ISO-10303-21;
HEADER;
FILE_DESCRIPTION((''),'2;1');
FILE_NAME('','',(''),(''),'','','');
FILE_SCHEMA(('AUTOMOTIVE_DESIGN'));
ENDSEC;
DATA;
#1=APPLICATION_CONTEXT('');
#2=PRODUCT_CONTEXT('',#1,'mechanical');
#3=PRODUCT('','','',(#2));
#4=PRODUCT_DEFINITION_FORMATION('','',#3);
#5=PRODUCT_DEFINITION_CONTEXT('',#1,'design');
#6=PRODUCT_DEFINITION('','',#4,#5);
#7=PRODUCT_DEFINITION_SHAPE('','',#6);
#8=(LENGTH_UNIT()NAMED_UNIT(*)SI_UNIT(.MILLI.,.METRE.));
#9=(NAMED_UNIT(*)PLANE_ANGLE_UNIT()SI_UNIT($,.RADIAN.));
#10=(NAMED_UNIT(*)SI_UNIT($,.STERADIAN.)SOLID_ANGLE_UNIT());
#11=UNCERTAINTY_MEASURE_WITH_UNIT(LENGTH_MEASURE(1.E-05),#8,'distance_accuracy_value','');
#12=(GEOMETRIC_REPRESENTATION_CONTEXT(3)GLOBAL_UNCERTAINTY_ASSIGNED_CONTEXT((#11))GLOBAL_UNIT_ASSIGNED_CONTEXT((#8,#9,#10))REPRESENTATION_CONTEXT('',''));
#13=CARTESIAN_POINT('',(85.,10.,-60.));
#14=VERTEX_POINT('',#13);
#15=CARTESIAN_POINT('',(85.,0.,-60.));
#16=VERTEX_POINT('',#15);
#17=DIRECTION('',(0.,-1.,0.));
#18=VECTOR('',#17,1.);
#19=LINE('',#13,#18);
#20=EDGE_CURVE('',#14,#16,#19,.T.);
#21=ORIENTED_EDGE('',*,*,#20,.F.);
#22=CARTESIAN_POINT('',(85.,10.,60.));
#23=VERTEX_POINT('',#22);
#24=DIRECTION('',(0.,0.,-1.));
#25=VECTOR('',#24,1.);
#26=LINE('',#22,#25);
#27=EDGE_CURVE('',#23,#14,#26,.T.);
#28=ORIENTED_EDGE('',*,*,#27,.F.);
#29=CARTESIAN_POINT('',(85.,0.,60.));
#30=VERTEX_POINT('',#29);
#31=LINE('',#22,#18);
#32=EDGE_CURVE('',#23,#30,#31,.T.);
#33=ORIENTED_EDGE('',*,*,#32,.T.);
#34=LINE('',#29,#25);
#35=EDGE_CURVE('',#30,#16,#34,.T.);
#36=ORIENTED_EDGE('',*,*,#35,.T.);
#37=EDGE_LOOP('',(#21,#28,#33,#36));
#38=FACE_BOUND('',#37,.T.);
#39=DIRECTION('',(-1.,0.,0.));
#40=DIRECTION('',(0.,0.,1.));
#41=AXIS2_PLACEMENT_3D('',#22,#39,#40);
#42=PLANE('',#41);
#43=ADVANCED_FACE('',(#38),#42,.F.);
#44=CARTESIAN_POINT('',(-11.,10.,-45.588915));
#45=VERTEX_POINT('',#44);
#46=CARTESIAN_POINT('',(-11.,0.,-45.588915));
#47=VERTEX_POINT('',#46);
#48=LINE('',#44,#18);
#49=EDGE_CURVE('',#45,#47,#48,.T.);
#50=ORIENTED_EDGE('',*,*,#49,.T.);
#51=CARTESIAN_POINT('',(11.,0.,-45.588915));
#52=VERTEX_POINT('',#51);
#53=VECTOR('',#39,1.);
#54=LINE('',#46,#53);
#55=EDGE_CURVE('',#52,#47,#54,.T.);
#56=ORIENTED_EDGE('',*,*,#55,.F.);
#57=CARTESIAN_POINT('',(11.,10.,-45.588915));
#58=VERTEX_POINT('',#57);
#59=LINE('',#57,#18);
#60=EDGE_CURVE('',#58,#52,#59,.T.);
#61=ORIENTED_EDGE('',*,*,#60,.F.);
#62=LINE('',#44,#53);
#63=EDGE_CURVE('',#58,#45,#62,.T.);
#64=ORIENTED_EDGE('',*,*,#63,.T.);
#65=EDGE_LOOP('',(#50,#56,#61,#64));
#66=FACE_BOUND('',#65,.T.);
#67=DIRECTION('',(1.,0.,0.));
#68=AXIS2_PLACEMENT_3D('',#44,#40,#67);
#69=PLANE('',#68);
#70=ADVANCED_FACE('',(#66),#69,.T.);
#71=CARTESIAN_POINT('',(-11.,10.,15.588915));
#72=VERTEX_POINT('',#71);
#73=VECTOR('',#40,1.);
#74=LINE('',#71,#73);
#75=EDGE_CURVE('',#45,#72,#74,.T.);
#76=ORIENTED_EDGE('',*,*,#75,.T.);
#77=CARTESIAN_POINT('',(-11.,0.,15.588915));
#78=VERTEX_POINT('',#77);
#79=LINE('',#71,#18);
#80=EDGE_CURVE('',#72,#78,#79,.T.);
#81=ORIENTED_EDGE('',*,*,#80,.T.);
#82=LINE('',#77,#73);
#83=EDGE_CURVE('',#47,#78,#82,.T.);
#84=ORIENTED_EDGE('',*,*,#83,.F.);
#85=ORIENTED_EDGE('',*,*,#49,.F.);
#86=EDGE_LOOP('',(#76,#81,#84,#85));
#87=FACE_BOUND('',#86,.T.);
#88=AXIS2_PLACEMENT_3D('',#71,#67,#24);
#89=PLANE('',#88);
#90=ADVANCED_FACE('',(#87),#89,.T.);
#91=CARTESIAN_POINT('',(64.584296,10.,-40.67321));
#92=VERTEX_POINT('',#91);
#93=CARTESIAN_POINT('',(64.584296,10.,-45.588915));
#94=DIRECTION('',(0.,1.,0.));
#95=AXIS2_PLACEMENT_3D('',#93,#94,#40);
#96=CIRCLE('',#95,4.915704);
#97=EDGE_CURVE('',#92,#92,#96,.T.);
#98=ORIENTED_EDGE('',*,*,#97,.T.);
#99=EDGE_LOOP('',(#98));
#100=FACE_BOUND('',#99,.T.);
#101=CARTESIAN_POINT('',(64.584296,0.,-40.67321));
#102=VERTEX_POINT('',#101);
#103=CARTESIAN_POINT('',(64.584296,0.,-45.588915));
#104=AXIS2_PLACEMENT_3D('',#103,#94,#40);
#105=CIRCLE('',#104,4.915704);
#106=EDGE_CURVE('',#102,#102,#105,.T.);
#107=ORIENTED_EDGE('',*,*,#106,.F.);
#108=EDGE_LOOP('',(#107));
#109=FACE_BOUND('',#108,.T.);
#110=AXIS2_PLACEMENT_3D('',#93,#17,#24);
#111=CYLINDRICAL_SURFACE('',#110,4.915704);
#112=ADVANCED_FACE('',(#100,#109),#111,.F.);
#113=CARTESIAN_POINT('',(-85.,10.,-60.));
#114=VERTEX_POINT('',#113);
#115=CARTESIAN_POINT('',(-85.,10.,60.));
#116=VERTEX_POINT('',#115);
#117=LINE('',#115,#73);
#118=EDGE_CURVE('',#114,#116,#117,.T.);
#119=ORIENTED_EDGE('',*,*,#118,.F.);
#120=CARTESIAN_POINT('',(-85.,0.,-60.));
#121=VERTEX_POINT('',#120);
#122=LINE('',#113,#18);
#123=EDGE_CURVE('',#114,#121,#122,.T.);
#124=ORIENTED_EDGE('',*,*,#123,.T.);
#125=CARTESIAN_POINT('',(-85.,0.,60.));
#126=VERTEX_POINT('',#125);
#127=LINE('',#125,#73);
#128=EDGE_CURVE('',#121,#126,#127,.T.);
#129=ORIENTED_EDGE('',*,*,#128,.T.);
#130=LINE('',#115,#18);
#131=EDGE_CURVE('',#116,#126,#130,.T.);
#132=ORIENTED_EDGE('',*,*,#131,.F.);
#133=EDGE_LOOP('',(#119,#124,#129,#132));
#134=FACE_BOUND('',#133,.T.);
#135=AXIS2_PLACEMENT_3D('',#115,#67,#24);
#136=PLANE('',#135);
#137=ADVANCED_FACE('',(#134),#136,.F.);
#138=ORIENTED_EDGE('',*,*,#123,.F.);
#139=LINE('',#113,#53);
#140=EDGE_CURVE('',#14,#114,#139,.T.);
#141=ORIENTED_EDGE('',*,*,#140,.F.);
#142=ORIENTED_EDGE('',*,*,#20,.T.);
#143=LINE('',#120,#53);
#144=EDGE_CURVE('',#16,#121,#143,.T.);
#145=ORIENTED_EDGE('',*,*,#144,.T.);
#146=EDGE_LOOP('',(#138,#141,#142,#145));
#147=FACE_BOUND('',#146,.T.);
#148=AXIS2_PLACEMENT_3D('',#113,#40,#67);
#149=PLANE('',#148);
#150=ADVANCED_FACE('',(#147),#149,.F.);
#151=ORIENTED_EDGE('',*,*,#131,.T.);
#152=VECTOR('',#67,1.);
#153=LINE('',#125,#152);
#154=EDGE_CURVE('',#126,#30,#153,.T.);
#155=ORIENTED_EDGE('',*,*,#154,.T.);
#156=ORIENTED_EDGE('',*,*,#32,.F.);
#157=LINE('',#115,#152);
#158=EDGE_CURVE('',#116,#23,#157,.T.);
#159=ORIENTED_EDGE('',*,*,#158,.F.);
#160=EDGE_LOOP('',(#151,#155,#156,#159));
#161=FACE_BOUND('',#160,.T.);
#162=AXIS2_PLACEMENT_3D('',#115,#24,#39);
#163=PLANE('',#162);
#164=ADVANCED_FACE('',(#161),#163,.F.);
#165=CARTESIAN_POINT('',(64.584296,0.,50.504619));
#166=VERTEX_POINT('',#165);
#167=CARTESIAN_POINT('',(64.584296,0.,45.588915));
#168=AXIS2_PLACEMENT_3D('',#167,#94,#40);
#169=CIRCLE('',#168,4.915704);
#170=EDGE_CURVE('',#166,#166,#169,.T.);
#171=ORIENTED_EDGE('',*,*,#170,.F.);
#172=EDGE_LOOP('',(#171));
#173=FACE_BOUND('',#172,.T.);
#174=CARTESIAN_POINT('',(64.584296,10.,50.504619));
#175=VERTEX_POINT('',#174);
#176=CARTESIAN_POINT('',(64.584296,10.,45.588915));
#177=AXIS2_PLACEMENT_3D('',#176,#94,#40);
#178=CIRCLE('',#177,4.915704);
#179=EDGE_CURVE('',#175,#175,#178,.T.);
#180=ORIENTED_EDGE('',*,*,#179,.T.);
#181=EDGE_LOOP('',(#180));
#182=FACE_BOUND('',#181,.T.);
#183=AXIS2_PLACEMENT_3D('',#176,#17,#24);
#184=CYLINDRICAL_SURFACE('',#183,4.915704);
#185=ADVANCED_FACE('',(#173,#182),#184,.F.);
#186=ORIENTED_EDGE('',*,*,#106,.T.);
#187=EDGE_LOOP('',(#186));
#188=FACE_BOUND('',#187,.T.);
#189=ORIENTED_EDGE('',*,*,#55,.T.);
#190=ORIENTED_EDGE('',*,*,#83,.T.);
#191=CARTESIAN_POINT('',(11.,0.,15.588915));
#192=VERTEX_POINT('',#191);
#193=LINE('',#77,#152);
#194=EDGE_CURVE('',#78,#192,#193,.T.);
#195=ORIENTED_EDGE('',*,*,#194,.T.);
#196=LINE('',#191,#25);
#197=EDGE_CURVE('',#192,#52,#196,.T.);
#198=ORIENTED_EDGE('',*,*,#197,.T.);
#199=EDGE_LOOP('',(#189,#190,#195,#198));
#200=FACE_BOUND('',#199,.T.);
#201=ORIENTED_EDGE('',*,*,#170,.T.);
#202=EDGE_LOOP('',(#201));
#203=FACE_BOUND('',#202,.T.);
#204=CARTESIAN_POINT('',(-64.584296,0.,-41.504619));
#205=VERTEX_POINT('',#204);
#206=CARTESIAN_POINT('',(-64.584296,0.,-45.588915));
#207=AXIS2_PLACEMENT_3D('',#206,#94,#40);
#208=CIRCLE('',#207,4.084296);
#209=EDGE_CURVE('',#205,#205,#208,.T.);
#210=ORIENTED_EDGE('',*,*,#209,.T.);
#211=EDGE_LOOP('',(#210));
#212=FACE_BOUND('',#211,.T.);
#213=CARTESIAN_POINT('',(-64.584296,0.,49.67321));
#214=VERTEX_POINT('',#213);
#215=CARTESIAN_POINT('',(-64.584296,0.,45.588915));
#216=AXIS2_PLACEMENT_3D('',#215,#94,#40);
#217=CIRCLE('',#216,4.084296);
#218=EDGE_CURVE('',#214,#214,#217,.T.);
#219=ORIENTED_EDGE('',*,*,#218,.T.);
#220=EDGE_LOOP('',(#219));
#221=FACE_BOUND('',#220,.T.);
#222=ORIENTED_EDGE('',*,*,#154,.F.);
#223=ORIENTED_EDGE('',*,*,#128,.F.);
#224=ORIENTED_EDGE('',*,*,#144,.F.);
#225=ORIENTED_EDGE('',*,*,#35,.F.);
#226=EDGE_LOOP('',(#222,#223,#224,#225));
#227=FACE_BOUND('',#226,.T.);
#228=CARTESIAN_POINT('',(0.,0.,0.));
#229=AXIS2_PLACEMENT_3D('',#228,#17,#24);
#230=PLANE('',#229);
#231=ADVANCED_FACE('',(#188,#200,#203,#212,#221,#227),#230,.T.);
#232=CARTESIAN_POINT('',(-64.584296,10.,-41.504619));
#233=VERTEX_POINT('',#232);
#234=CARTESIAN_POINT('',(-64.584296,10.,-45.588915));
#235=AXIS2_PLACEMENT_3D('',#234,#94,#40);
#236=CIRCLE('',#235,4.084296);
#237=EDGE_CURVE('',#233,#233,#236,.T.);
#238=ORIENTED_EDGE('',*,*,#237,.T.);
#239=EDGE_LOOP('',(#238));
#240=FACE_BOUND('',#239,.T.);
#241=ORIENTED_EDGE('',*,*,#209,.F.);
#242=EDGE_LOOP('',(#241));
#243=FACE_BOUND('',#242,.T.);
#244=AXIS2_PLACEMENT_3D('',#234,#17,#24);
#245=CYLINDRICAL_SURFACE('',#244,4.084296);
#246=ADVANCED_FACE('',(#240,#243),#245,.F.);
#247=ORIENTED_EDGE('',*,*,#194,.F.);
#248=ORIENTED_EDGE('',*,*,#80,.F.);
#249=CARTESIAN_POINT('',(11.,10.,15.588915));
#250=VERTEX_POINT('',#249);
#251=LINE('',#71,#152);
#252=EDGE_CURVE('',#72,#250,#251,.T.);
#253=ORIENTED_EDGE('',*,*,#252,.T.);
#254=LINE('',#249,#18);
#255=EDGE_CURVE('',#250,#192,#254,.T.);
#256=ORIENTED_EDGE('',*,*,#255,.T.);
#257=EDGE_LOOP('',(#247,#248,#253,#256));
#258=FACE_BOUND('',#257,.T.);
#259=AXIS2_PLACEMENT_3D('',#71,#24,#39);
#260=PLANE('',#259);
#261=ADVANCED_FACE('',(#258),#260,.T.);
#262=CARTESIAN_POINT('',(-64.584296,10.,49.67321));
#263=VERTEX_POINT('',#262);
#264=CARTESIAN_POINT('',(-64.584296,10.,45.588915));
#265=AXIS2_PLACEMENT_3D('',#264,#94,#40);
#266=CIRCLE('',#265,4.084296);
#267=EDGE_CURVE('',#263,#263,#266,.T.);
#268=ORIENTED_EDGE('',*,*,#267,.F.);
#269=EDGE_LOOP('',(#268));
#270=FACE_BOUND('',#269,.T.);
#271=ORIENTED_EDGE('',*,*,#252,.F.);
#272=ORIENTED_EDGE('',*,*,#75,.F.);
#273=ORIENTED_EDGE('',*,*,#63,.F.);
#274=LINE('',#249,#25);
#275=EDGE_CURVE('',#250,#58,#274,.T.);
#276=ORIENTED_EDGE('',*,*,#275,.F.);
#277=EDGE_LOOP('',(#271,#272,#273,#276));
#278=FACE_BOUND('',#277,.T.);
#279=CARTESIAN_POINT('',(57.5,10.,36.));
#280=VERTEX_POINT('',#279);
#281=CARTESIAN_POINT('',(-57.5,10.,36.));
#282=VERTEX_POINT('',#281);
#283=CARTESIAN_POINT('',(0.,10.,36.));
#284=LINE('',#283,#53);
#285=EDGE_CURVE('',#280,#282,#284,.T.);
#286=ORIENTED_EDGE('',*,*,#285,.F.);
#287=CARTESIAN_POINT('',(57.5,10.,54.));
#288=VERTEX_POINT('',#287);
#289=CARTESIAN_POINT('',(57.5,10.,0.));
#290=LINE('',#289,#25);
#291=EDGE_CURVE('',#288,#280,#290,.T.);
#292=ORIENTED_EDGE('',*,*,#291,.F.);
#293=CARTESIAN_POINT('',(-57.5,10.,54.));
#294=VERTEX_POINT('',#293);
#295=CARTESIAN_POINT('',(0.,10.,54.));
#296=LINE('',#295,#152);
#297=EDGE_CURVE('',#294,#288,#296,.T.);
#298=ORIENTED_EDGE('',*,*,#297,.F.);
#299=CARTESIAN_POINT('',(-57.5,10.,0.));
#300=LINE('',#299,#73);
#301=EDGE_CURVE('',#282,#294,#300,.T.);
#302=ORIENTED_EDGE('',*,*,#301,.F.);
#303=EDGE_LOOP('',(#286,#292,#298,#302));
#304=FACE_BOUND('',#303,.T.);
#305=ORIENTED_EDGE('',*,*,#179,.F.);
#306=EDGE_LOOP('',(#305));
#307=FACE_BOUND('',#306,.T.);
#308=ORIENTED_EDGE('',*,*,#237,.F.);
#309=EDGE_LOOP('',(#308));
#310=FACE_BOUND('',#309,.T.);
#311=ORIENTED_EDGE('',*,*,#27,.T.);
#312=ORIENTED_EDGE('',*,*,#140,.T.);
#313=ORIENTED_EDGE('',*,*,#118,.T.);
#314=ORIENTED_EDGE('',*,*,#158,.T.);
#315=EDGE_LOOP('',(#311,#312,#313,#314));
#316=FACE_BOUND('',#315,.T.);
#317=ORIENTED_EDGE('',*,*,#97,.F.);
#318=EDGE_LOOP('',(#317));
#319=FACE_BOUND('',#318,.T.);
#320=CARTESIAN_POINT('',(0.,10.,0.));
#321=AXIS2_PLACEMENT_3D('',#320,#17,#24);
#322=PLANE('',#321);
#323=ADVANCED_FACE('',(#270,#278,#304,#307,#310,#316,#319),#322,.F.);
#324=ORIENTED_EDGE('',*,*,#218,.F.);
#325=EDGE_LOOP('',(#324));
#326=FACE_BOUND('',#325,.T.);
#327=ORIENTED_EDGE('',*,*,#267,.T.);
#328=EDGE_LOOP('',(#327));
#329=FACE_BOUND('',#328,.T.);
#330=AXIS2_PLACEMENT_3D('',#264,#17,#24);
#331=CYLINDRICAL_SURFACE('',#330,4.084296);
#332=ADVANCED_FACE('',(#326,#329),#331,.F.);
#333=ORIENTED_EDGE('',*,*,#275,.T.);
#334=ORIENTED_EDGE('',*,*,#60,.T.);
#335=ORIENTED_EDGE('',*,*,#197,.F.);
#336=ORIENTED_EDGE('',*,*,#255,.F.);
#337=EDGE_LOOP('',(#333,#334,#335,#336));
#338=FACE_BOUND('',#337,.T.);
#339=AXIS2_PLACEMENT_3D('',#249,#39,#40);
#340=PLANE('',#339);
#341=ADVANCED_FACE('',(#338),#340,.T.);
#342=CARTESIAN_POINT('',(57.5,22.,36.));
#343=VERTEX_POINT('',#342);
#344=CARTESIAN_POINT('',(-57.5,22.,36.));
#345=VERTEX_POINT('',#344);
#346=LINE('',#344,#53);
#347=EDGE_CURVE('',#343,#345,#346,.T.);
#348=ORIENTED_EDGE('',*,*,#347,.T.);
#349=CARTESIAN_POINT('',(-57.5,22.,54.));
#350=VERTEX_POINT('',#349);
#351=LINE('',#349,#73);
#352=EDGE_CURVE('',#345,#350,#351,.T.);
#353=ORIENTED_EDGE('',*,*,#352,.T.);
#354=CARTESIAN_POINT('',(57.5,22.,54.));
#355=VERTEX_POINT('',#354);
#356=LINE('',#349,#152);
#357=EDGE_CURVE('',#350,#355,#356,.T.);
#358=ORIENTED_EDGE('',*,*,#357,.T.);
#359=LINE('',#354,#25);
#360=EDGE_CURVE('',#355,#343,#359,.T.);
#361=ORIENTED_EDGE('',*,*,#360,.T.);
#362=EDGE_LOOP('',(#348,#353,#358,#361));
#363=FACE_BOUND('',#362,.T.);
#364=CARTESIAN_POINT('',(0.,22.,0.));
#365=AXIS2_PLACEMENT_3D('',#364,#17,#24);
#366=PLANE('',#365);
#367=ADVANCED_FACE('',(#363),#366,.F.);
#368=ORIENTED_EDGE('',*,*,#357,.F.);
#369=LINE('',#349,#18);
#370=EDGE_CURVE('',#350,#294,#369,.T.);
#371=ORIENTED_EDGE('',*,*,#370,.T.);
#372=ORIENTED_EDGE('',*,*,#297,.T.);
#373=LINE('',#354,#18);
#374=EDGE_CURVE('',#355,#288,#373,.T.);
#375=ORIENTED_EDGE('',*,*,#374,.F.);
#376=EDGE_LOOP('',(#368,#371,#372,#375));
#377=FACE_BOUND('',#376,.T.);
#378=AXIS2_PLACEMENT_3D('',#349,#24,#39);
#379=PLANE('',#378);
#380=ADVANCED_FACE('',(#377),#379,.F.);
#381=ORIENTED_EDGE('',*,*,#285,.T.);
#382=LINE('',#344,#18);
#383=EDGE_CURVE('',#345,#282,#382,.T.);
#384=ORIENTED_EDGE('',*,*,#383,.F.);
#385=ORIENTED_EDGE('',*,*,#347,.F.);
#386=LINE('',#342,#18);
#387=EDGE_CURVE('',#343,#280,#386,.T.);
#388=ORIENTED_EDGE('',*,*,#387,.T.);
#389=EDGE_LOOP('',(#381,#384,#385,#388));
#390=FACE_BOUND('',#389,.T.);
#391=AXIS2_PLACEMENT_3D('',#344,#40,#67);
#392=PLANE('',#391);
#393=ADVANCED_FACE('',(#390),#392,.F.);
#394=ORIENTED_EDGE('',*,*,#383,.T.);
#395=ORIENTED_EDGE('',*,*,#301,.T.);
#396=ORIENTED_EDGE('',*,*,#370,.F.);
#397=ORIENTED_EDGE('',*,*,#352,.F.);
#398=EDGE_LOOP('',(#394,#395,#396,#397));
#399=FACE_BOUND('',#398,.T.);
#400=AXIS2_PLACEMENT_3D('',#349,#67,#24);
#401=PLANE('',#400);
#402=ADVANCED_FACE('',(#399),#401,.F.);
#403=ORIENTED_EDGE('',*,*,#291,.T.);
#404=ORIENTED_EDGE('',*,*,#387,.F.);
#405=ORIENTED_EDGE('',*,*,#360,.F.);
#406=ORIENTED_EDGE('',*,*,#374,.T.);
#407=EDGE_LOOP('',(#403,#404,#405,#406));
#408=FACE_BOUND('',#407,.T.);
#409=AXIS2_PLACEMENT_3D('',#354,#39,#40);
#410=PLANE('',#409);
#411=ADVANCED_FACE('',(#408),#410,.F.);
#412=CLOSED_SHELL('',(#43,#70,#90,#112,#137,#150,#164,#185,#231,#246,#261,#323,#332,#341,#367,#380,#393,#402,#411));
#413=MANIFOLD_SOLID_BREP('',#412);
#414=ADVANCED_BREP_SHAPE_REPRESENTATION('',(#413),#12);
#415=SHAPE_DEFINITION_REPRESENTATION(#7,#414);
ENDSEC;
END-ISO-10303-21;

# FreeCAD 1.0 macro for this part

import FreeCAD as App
import Part
import Sketcher
Q = App.Units.Quantity

doc = App.newDocument("Part")
body = doc.addObject("PartDesign::Body", "Body")

sketch1 = body.newObject("Sketcher::SketchObject", "Sketch")
sketch1.AttachmentSupport = (doc.getObject("XZ_Plane"), [""])
sketch1.MapMode = "FlatFace"
sketch1.addGeometry(Part.LineSegment(App.Vector(-85, -60, 0), App.Vector(-85, 60, 0)), False)
sketch1.addGeometry(Part.LineSegment(App.Vector(-85, 60, 0), App.Vector(85, 60, 0)), False)
sketch1.addGeometry(Part.LineSegment(App.Vector(85, 60, 0), App.Vector(85, -60, 0)), False)
sketch1.addGeometry(Part.LineSegment(App.Vector(85, -60, 0), App.Vector(-85, -60, 0)), False)
sketch1.addGeometry(Part.Circle(App.Vector(-64.6, 45.6, 0), App.Vector(0, 0, 1), 4.1), False)
sketch1.addGeometry(Part.Circle(App.Vector(64.6, 45.6, 0), App.Vector(0, 0, 1), 4.9), False)
sketch1.addGeometry(Part.LineSegment(App.Vector(11, 15.6, 0), App.Vector(-11, 15.6, 0)), False)
sketch1.addGeometry(Part.LineSegment(App.Vector(-11, 15.6, 0), App.Vector(-11, -45.6, 0)), False)
sketch1.addGeometry(Part.LineSegment(App.Vector(-11, -45.6, 0), App.Vector(11, -45.6, 0)), False)
sketch1.addGeometry(Part.LineSegment(App.Vector(11, -45.6, 0), App.Vector(11, 15.6, 0)), False)
sketch1.addGeometry(Part.Circle(App.Vector(-64.6, -45.6, 0), App.Vector(0, 0, 1), 4.1), False)
sketch1.addGeometry(Part.Circle(App.Vector(64.6, -45.6, 0), App.Vector(0, 0, 1), 4.9), False)
sketch1.addConstraint(Sketcher.Constraint("Coincident", 0, 2, 1, 1))
sketch1.addConstraint(Sketcher.Constraint("Coincident", 1, 2, 2, 1))
sketch1.addConstraint(Sketcher.Constraint("Coincident", 2, 2, 3, 1))
sketch1.addConstraint(Sketcher.Constraint("Coincident", 3, 2, 0, 1))
sketch1.addConstraint(Sketcher.Constraint("Coincident", 6, 2, 7, 1))
sketch1.addConstraint(Sketcher.Constraint("Coincident", 7, 2, 8, 1))
sketch1.addConstraint(Sketcher.Constraint("Coincident", 8, 2, 9, 1))
sketch1.addConstraint(Sketcher.Constraint("Coincident", 9, 2, 6, 1))
sketch1.addConstraint(Sketcher.Constraint("Vertical", 0))
sketch1.addConstraint(Sketcher.Constraint("Horizontal", 1))
sketch1.addConstraint(Sketcher.Constraint("Vertical", 2))
sketch1.addConstraint(Sketcher.Constraint("Horizontal", 3))
sketch1.addConstraint(Sketcher.Constraint("Horizontal", 6))
sketch1.addConstraint(Sketcher.Constraint("Vertical", 7))
sketch1.addConstraint(Sketcher.Constraint("Horizontal", 8))
sketch1.addConstraint(Sketcher.Constraint("Vertical", 9))
sketch1.addConstraint(Sketcher.Constraint("Equal", 4, 10))
sketch1.addConstraint(Sketcher.Constraint("Equal", 5, 11))
sketch1.addConstraint(Sketcher.Constraint("Symmetric", 5, 3, 10, 3, -1, 1))
sketch1.addConstraint(Sketcher.Constraint("Symmetric", 4, 3, 11, 3, -1, 1))
sketch1.addConstraint(Sketcher.Constraint("Symmetric", 0, 2, 2, 2, -1, 1))
sketch1.addConstraint(Sketcher.Constraint("Symmetric", 4, 3, 5, 3, -2))
sketch1.addConstraint(Sketcher.Constraint("Horizontal", 11, 3, 7, 2))
sketch1.addConstraint(Sketcher.Constraint("DistanceX", 1, 1, 1, 2, Q("170 mm")))
sketch1.addConstraint(Sketcher.Constraint("DistanceX", 6, 2, 6, 1, Q("22 mm")))
sketch1.addConstraint(Sketcher.Constraint("DistanceY", 0, 1, 0, 2, Q("120 mm")))
sketch1.addConstraint(Sketcher.Constraint("DistanceX", 6, 2, -1, 1, Q("11 mm")))
sketch1.addConstraint(Sketcher.Constraint("DistanceY", 6, 2, 4, 3, Q("30 mm")))
sketch1.addConstraint(Sketcher.Constraint("Diameter", 4, Q("8.168591 mm")))
sketch1.addConstraint(Sketcher.Constraint("Diameter", 5, Q("9.831409 mm")))
sketch1.addConstraint(Sketcher.Constraint("DistanceY", 7, 2, 7, 1, Q("61.177829 mm")))
sketch1.addConstraint(Sketcher.Constraint("DistanceX", 4, 3, 5, 3, Q("129.168591 mm")))
pad1 = body.newObject("PartDesign::Pad", "Pad")
pad1.Profile = sketch1
pad1.Length = 10
pad1.Reversed = True

sketch2 = body.newObject("Sketcher::SketchObject", "Sketch001")
sketch2.AttachmentSupport = (doc.getObject("XZ_Plane"), [""])
sketch2.MapMode = "FlatFace"
sketch2.addGeometry(Part.LineSegment(App.Vector(-58, 36, 0), App.Vector(-58, 54, 0)), False)
sketch2.addGeometry(Part.LineSegment(App.Vector(-58, 54, 0), App.Vector(58, 54, 0)), False)
sketch2.addGeometry(Part.LineSegment(App.Vector(58, 54, 0), App.Vector(58, 36, 0)), False)
sketch2.addGeometry(Part.LineSegment(App.Vector(58, 36, 0), App.Vector(-58, 36, 0)), False)
sketch2.addConstraint(Sketcher.Constraint("Coincident", 0, 2, 1, 1))
sketch2.addConstraint(Sketcher.Constraint("Coincident", 1, 2, 2, 1))
sketch2.addConstraint(Sketcher.Constraint("Coincident", 2, 2, 3, 1))
sketch2.addConstraint(Sketcher.Constraint("Coincident", 3, 2, 0, 1))
sketch2.addConstraint(Sketcher.Constraint("Vertical", 0))
sketch2.addConstraint(Sketcher.Constraint("Horizontal", 1))
sketch2.addConstraint(Sketcher.Constraint("Vertical", 2))
sketch2.addConstraint(Sketcher.Constraint("Horizontal", 3))
sketch2.addConstraint(Sketcher.Constraint("DistanceX", 1, 1, 1, 2, Q("115 mm")))
sketch2.addConstraint(Sketcher.Constraint("DistanceY", 0, 1, 0, 2, Q("18 mm")))
sketch2.addConstraint(Sketcher.Constraint("DistanceY", -1, 1, 0, 2, Q("54 mm")))
sketch2.addConstraint(Sketcher.Constraint("DistanceX", 0, 2, -1, 1, Q("57.5 mm")))
pad2 = body.newObject("PartDesign::Pad", "Pad001")
pad2.Profile = sketch2
pad2.Length = 22
pad2.Reversed = True

doc.recompute()
